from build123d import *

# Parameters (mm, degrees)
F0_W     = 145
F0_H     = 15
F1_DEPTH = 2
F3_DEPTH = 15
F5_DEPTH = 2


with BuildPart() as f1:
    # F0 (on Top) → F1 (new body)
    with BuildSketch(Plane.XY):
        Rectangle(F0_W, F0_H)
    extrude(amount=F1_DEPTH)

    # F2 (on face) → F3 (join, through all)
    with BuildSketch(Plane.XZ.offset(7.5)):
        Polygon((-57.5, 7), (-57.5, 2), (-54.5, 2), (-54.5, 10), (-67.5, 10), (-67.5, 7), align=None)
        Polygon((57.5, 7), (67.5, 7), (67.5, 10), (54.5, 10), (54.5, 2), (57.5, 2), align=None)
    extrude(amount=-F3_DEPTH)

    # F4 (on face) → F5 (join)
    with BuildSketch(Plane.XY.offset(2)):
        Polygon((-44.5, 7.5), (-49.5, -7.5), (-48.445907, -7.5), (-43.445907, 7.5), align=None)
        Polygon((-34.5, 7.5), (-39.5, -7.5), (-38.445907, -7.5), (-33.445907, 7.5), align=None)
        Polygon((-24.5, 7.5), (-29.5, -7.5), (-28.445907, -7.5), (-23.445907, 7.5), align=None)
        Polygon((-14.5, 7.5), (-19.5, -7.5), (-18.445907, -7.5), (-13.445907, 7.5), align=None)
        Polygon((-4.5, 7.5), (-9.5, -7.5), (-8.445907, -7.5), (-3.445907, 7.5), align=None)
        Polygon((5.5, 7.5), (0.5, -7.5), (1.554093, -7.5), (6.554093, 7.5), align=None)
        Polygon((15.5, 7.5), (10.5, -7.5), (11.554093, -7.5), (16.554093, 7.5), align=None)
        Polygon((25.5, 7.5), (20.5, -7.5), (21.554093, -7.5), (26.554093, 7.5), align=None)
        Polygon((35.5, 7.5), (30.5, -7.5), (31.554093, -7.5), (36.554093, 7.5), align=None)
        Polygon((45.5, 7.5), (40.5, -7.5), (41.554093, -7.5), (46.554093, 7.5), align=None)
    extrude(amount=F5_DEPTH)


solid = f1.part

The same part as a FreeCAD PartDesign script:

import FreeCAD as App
import Part
import Sketcher
from FreeCAD import Vector
Q = App.Units.Quantity

doc = App.newDocument("Part")
params = doc.addObject("Spreadsheet::Sheet", "Params")
for row, (alias, value) in enumerate([
    ("sketch1_width", "145 mm"),
    ("sketch1_height", "15 mm"),
    ("pad1_length", "2 mm"),
    ("sketch2_width", "3 mm"),
    ("sketch2_width2", "13 mm"),
    ("sketch2_height", "5 mm"),
    ("pad2_length", "15 mm"),
    ("pad3_length", "2 mm"),
], start=1):
    params.set(f"A{row}", alias)
    params.set(f"B{row}", "=" + value)
    params.setAlias(f"B{row}", alias)

body = doc.addObject("PartDesign::Body", "Body")

# Sketch on XY plane
sketch1 = body.newObject("Sketcher::SketchObject", "Sketch")
sketch1.AttachmentSupport = (doc.getObject("XY_Plane"), [""])
sketch1.MapMode = "FlatFace"
sketch1.addGeometry([
    Part.LineSegment(Vector(-72, 8, 0), Vector(-72, -8, 0)),
    Part.LineSegment(Vector(-72, -8, 0), Vector(72, -8, 0)),
    Part.LineSegment(Vector(72, -8, 0), Vector(72, 8, 0)),
    Part.LineSegment(Vector(72, 8, 0), Vector(-72, 8, 0)),
], False)
sketch1.addConstraint([
    Sketcher.Constraint("Coincident", 0, 2, 1, 1),
    Sketcher.Constraint("Coincident", 1, 2, 2, 1),
    Sketcher.Constraint("Coincident", 2, 2, 3, 1),
    Sketcher.Constraint("Coincident", 3, 2, 0, 1),
    Sketcher.Constraint("Vertical", 0),
    Sketcher.Constraint("Horizontal", 1),
    Sketcher.Constraint("Vertical", 2),
    Sketcher.Constraint("Horizontal", 3),
    Sketcher.Constraint("Symmetric", 0, 2, 2, 2, -1, 1),
    Sketcher.Constraint("DistanceX", 1, 1, 1, 2, Q("145 mm")),
    Sketcher.Constraint("DistanceY", 0, 2, 0, 1, Q("15 mm")),
])
sketch1.setExpression("Constraints[9]", "Params.sketch1_width")
sketch1.setExpression("Constraints[10]", "Params.sketch1_height")
pad1 = body.newObject("PartDesign::Pad", "Pad")
pad1.Profile = sketch1
pad1.setExpression("Length", "Params.pad1_length")

# Sketch on XZ plane
sketch2 = body.newObject("Sketcher::SketchObject", "Sketch001")
sketch2.AttachmentSupport = (doc.getObject("XZ_Plane"), [""])
sketch2.MapMode = "FlatFace"
sketch2.AttachmentOffset = App.Placement(Vector(0, 0, 7.5), App.Rotation())
sketch2.addGeometry([
    Part.LineSegment(Vector(-57.5, 7, 0), Vector(-57.5, 2, 0)),  # 0
    Part.LineSegment(Vector(-57.5, 2, 0), Vector(-54.5, 2, 0)),  # 1
    Part.LineSegment(Vector(-54.5, 2, 0), Vector(-54.5, 10, 0)),  # 2
    Part.LineSegment(Vector(-54.5, 10, 0), Vector(-67.5, 10, 0)),  # 3
    Part.LineSegment(Vector(-67.5, 10, 0), Vector(-67.5, 7, 0)),  # 4
    Part.LineSegment(Vector(-67.5, 7, 0), Vector(-57.5, 7, 0)),  # 5
    Part.LineSegment(Vector(57.5, 7, 0), Vector(67.5, 7, 0)),  # 6
    Part.LineSegment(Vector(67.5, 7, 0), Vector(67.5, 10, 0)),  # 7
    Part.LineSegment(Vector(67.5, 10, 0), Vector(54.5, 10, 0)),  # 8
    Part.LineSegment(Vector(54.5, 10, 0), Vector(54.5, 2, 0)),  # 9
    Part.LineSegment(Vector(54.5, 2, 0), Vector(57.5, 2, 0)),  # 10
    Part.LineSegment(Vector(57.5, 2, 0), Vector(57.5, 7, 0)),  # 11
], False)
sketch2.addConstraint([
    Sketcher.Constraint("Coincident", 0, 2, 1, 1),
    Sketcher.Constraint("Coincident", 1, 2, 2, 1),
    Sketcher.Constraint("Coincident", 2, 2, 3, 1),
    Sketcher.Constraint("Coincident", 3, 2, 4, 1),
    Sketcher.Constraint("Coincident", 4, 2, 5, 1),
    Sketcher.Constraint("Coincident", 5, 2, 0, 1),
    Sketcher.Constraint("Coincident", 6, 2, 7, 1),
    Sketcher.Constraint("Coincident", 7, 2, 8, 1),
    Sketcher.Constraint("Coincident", 8, 2, 9, 1),
    Sketcher.Constraint("Coincident", 9, 2, 10, 1),
    Sketcher.Constraint("Coincident", 10, 2, 11, 1),
    Sketcher.Constraint("Coincident", 11, 2, 6, 1),
    Sketcher.Constraint("Vertical", 0),
    Sketcher.Constraint("Horizontal", 1),
    Sketcher.Constraint("Vertical", 2),
    Sketcher.Constraint("Horizontal", 3),
    Sketcher.Constraint("Vertical", 4),
    Sketcher.Constraint("Horizontal", 5),
    Sketcher.Constraint("Horizontal", 6),
    Sketcher.Constraint("Vertical", 7),
    Sketcher.Constraint("Horizontal", 8),
    Sketcher.Constraint("Vertical", 9),
    Sketcher.Constraint("Horizontal", 10),
    Sketcher.Constraint("Vertical", 11),
    Sketcher.Constraint("Symmetric", 4, 2, 6, 2, -2),
    Sketcher.Constraint("Symmetric", 2, 2, 8, 2, -2),
    Sketcher.Constraint("Symmetric", 0, 2, 10, 2, -2),
    Sketcher.Constraint("Equal", 10, 4),
    Sketcher.Constraint("DistanceX", 1, 1, 1, 2, Q("3 mm")),
    Sketcher.Constraint("DistanceX", 3, 2, 3, 1, Q("13 mm")),
    Sketcher.Constraint("DistanceY", 0, 2, 0, 1, Q("5 mm")),
    Sketcher.Constraint("DistanceY", -1, 1, 0, 2, Q("2 mm")),
    Sketcher.Constraint("DistanceX", 2, 2, 6, 2, Q("122 mm")),
])
sketch2.setExpression("Constraints[28]", "Params.sketch2_width")
sketch2.setExpression("Constraints[29]", "Params.sketch2_width2")
sketch2.setExpression("Constraints[30]", "Params.sketch2_height")
pad2 = body.newObject("PartDesign::Pad", "Pad001")
pad2.Profile = sketch2
pad2.setExpression("Length", "Params.pad2_length")
pad2.Reversed = True

# Sketch on XY plane
sketch3 = body.newObject("Sketcher::SketchObject", "Sketch002")
sketch3.AttachmentSupport = (doc.getObject("XY_Plane"), [""])
sketch3.MapMode = "FlatFace"
sketch3.AttachmentOffset = App.Placement(Vector(0, 0, 2), App.Rotation())
sketch3.addGeometry([
    Part.LineSegment(Vector(-44.5, 7.5, 0), Vector(-49.5, -7.5, 0)),  # 0
    Part.LineSegment(Vector(-49.5, -7.5, 0), Vector(-48.4, -7.5, 0)),  # 1
    Part.LineSegment(Vector(-48.4, -7.5, 0), Vector(-43.4, 7.5, 0)),  # 2
    Part.LineSegment(Vector(-43.4, 7.5, 0), Vector(-44.5, 7.5, 0)),  # 3
    Part.LineSegment(Vector(-34.5, 7.5, 0), Vector(-39.5, -7.5, 0)),  # 4
    Part.LineSegment(Vector(-39.5, -7.5, 0), Vector(-38.4, -7.5, 0)),  # 5
    Part.LineSegment(Vector(-38.4, -7.5, 0), Vector(-33.4, 7.5, 0)),  # 6
    Part.LineSegment(Vector(-33.4, 7.5, 0), Vector(-34.5, 7.5, 0)),  # 7
    Part.LineSegment(Vector(-24.5, 7.5, 0), Vector(-29.5, -7.5, 0)),  # 8
    Part.LineSegment(Vector(-29.5, -7.5, 0), Vector(-28.4, -7.5, 0)),  # 9
    Part.LineSegment(Vector(-28.4, -7.5, 0), Vector(-23.4, 7.5, 0)),  # 10
    Part.LineSegment(Vector(-23.4, 7.5, 0), Vector(-24.5, 7.5, 0)),  # 11
    Part.LineSegment(Vector(-14.5, 7.5, 0), Vector(-19.5, -7.5, 0)),  # 12
    Part.LineSegment(Vector(-19.5, -7.5, 0), Vector(-18.4, -7.5, 0)),  # 13
    Part.LineSegment(Vector(-18.4, -7.5, 0), Vector(-13.4, 7.5, 0)),  # 14
    Part.LineSegment(Vector(-13.4, 7.5, 0), Vector(-14.5, 7.5, 0)),  # 15
    Part.LineSegment(Vector(-4.5, 7.5, 0), Vector(-9.5, -7.5, 0)),  # 16
    Part.LineSegment(Vector(-9.5, -7.5, 0), Vector(-8.4, -7.5, 0)),  # 17
    Part.LineSegment(Vector(-8.4, -7.5, 0), Vector(-3.4, 7.5, 0)),  # 18
    Part.LineSegment(Vector(-3.4, 7.5, 0), Vector(-4.5, 7.5, 0)),  # 19
    Part.LineSegment(Vector(5.5, 7.5, 0), Vector(0.5, -7.5, 0)),  # 20
    Part.LineSegment(Vector(0.5, -7.5, 0), Vector(1.6, -7.5, 0)),  # 21
    Part.LineSegment(Vector(1.6, -7.5, 0), Vector(6.6, 7.5, 0)),  # 22
    Part.LineSegment(Vector(6.6, 7.5, 0), Vector(5.5, 7.5, 0)),  # 23
    Part.LineSegment(Vector(15.5, 7.5, 0), Vector(10.5, -7.5, 0)),  # 24
    Part.LineSegment(Vector(10.5, -7.5, 0), Vector(11.6, -7.5, 0)),  # 25
    Part.LineSegment(Vector(11.6, -7.5, 0), Vector(16.6, 7.5, 0)),  # 26
    Part.LineSegment(Vector(16.6, 7.5, 0), Vector(15.5, 7.5, 0)),  # 27
    Part.LineSegment(Vector(25.5, 7.5, 0), Vector(20.5, -7.5, 0)),  # 28
    Part.LineSegment(Vector(20.5, -7.5, 0), Vector(21.6, -7.5, 0)),  # 29
    Part.LineSegment(Vector(21.6, -7.5, 0), Vector(26.6, 7.5, 0)),  # 30
    Part.LineSegment(Vector(26.6, 7.5, 0), Vector(25.5, 7.5, 0)),  # 31
    Part.LineSegment(Vector(35.5, 7.5, 0), Vector(30.5, -7.5, 0)),  # 32
    Part.LineSegment(Vector(30.5, -7.5, 0), Vector(31.6, -7.5, 0)),  # 33
    Part.LineSegment(Vector(31.6, -7.5, 0), Vector(36.6, 7.5, 0)),  # 34
    Part.LineSegment(Vector(36.6, 7.5, 0), Vector(35.5, 7.5, 0)),  # 35
    Part.LineSegment(Vector(45.5, 7.5, 0), Vector(40.5, -7.5, 0)),  # 36
    Part.LineSegment(Vector(40.5, -7.5, 0), Vector(41.6, -7.5, 0)),  # 37
    Part.LineSegment(Vector(41.6, -7.5, 0), Vector(46.6, 7.5, 0)),  # 38
    Part.LineSegment(Vector(46.6, 7.5, 0), Vector(45.5, 7.5, 0)),  # 39
], False)
sketch3.addConstraint([
    Sketcher.Constraint("Coincident", 0, 2, 1, 1),
    Sketcher.Constraint("Coincident", 1, 2, 2, 1),
    Sketcher.Constraint("Coincident", 2, 2, 3, 1),
    Sketcher.Constraint("Coincident", 3, 2, 0, 1),
    Sketcher.Constraint("Coincident", 4, 2, 5, 1),
    Sketcher.Constraint("Coincident", 5, 2, 6, 1),
    Sketcher.Constraint("Coincident", 6, 2, 7, 1),
    Sketcher.Constraint("Coincident", 7, 2, 4, 1),
    Sketcher.Constraint("Coincident", 8, 2, 9, 1),
    Sketcher.Constraint("Coincident", 9, 2, 10, 1),
    Sketcher.Constraint("Coincident", 10, 2, 11, 1),
    Sketcher.Constraint("Coincident", 11, 2, 8, 1),
    Sketcher.Constraint("Coincident", 12, 2, 13, 1),
    Sketcher.Constraint("Coincident", 13, 2, 14, 1),
    Sketcher.Constraint("Coincident", 14, 2, 15, 1),
    Sketcher.Constraint("Coincident", 15, 2, 12, 1),
    Sketcher.Constraint("Coincident", 16, 2, 17, 1),
    Sketcher.Constraint("Coincident", 17, 2, 18, 1),
    Sketcher.Constraint("Coincident", 18, 2, 19, 1),
    Sketcher.Constraint("Coincident", 19, 2, 16, 1),
    Sketcher.Constraint("Coincident", 20, 2, 21, 1),
    Sketcher.Constraint("Coincident", 21, 2, 22, 1),
    Sketcher.Constraint("Coincident", 22, 2, 23, 1),
    Sketcher.Constraint("Coincident", 23, 2, 20, 1),
    Sketcher.Constraint("Coincident", 24, 2, 25, 1),
    Sketcher.Constraint("Coincident", 25, 2, 26, 1),
    Sketcher.Constraint("Coincident", 26, 2, 27, 1),
    Sketcher.Constraint("Coincident", 27, 2, 24, 1),
    Sketcher.Constraint("Coincident", 28, 2, 29, 1),
    Sketcher.Constraint("Coincident", 29, 2, 30, 1),
    Sketcher.Constraint("Coincident", 30, 2, 31, 1),
    Sketcher.Constraint("Coincident", 31, 2, 28, 1),
    Sketcher.Constraint("Coincident", 32, 2, 33, 1),
    Sketcher.Constraint("Coincident", 33, 2, 34, 1),
    Sketcher.Constraint("Coincident", 34, 2, 35, 1),
    Sketcher.Constraint("Coincident", 35, 2, 32, 1),
    Sketcher.Constraint("Coincident", 36, 2, 37, 1),
    Sketcher.Constraint("Coincident", 37, 2, 38, 1),
    Sketcher.Constraint("Coincident", 38, 2, 39, 1),
    Sketcher.Constraint("Coincident", 39, 2, 36, 1),
    Sketcher.Constraint("Horizontal", 1),
    Sketcher.Constraint("Horizontal", 3),
    Sketcher.Constraint("Horizontal", 5),
    Sketcher.Constraint("Horizontal", 7),
    Sketcher.Constraint("Horizontal", 9),
    Sketcher.Constraint("Horizontal", 11),
    Sketcher.Constraint("Horizontal", 13),
    Sketcher.Constraint("Horizontal", 15),
    Sketcher.Constraint("Horizontal", 17),
    Sketcher.Constraint("Horizontal", 19),
    Sketcher.Constraint("Horizontal", 21),
    Sketcher.Constraint("Horizontal", 23),
    Sketcher.Constraint("Horizontal", 25),
    Sketcher.Constraint("Horizontal", 27),
    Sketcher.Constraint("Horizontal", 29),
    Sketcher.Constraint("Horizontal", 31),
    Sketcher.Constraint("Horizontal", 33),
    Sketcher.Constraint("Horizontal", 35),
    Sketcher.Constraint("Horizontal", 37),
    Sketcher.Constraint("Horizontal", 39),
    Sketcher.Constraint("Parallel", 0, 2),
    Sketcher.Constraint("Parallel", 2, 4),
    Sketcher.Constraint("Parallel", 4, 6),
    Sketcher.Constraint("Parallel", 6, 8),
    Sketcher.Constraint("Parallel", 8, 10),
    Sketcher.Constraint("Parallel", 10, 12),
    Sketcher.Constraint("Parallel", 12, 14),
    Sketcher.Constraint("Parallel", 14, 16),
    Sketcher.Constraint("Parallel", 16, 18),
    Sketcher.Constraint("Parallel", 18, 20),
    Sketcher.Constraint("Parallel", 20, 22),
    Sketcher.Constraint("Parallel", 22, 24),
    Sketcher.Constraint("Parallel", 24, 26),
    Sketcher.Constraint("Parallel", 26, 28),
    Sketcher.Constraint("Parallel", 28, 30),
    Sketcher.Constraint("Parallel", 30, 32),
    Sketcher.Constraint("Parallel", 32, 34),
    Sketcher.Constraint("Parallel", 34, 36),
    Sketcher.Constraint("Parallel", 36, 38),
    Sketcher.Constraint("Horizontal", 1, 2, 4, 2),
    Sketcher.Constraint("Horizontal", 3, 2, 6, 2),
    Sketcher.Constraint("Horizontal", 5, 2, 8, 2),
    Sketcher.Constraint("Horizontal", 7, 2, 10, 2),
    Sketcher.Constraint("Horizontal", 9, 2, 12, 2),
    Sketcher.Constraint("Horizontal", 11, 2, 14, 2),
    Sketcher.Constraint("Horizontal", 13, 2, 16, 2),
    Sketcher.Constraint("Horizontal", 15, 2, 18, 2),
    Sketcher.Constraint("Horizontal", 17, 2, 20, 2),
    Sketcher.Constraint("Horizontal", 19, 2, 22, 2),
    Sketcher.Constraint("Horizontal", 21, 2, 24, 2),
    Sketcher.Constraint("Horizontal", 23, 2, 26, 2),
    Sketcher.Constraint("Horizontal", 25, 2, 28, 2),
    Sketcher.Constraint("Horizontal", 27, 2, 30, 2),
    Sketcher.Constraint("Horizontal", 29, 2, 32, 2),
    Sketcher.Constraint("Horizontal", 31, 2, 34, 2),
    Sketcher.Constraint("Horizontal", 33, 2, 36, 2),
    Sketcher.Constraint("Horizontal", 35, 2, 38, 2),
    Sketcher.Constraint("Equal", 3, 5),
    Sketcher.Constraint("Equal", 7, 9),
    Sketcher.Constraint("Equal", 11, 13),
    Sketcher.Constraint("Equal", 15, 17),
    Sketcher.Constraint("Equal", 19, 21),
    Sketcher.Constraint("Equal", 23, 25),
    Sketcher.Constraint("Equal", 27, 29),
    Sketcher.Constraint("Equal", 31, 33),
    Sketcher.Constraint("Equal", 35, 37),
    Sketcher.Constraint("DistanceX", 1, 2, 2, 2, Q("5 mm")),
    Sketcher.Constraint("DistanceY", 1, 2, 2, 2, Q("15 mm")),
    Sketcher.Constraint("DistanceX", 0, 2, 4, 2, Q("10 mm")),
    Sketcher.Constraint("DistanceX", 4, 2, 8, 2, Q("10 mm")),
    Sketcher.Constraint("DistanceX", 8, 2, 12, 2, Q("10 mm")),
    Sketcher.Constraint("DistanceX", 12, 2, 16, 2, Q("10 mm")),
    Sketcher.Constraint("DistanceX", 16, 2, 20, 2, Q("10 mm")),
    Sketcher.Constraint("DistanceX", 20, 2, 24, 2, Q("10 mm")),
    Sketcher.Constraint("DistanceX", 24, 2, 28, 2, Q("10 mm")),
    Sketcher.Constraint("DistanceX", 28, 2, 32, 2, Q("10 mm")),
    Sketcher.Constraint("DistanceX", 32, 2, 36, 2, Q("10 mm")),
    Sketcher.Constraint("DistanceX", 0, 2, -1, 1, Q("49.5 mm")),
    Sketcher.Constraint("DistanceY", 0, 2, -1, 1, Q("7.5 mm")),
    Sketcher.Constraint("DistanceX", 1, 1, 1, 2, Q("1.054093 mm")),
])
pad3 = body.newObject("PartDesign::Pad", "Pad002")
pad3.Profile = sketch3
pad3.setExpression("Length", "Params.pad3_length")

doc.recompute()
